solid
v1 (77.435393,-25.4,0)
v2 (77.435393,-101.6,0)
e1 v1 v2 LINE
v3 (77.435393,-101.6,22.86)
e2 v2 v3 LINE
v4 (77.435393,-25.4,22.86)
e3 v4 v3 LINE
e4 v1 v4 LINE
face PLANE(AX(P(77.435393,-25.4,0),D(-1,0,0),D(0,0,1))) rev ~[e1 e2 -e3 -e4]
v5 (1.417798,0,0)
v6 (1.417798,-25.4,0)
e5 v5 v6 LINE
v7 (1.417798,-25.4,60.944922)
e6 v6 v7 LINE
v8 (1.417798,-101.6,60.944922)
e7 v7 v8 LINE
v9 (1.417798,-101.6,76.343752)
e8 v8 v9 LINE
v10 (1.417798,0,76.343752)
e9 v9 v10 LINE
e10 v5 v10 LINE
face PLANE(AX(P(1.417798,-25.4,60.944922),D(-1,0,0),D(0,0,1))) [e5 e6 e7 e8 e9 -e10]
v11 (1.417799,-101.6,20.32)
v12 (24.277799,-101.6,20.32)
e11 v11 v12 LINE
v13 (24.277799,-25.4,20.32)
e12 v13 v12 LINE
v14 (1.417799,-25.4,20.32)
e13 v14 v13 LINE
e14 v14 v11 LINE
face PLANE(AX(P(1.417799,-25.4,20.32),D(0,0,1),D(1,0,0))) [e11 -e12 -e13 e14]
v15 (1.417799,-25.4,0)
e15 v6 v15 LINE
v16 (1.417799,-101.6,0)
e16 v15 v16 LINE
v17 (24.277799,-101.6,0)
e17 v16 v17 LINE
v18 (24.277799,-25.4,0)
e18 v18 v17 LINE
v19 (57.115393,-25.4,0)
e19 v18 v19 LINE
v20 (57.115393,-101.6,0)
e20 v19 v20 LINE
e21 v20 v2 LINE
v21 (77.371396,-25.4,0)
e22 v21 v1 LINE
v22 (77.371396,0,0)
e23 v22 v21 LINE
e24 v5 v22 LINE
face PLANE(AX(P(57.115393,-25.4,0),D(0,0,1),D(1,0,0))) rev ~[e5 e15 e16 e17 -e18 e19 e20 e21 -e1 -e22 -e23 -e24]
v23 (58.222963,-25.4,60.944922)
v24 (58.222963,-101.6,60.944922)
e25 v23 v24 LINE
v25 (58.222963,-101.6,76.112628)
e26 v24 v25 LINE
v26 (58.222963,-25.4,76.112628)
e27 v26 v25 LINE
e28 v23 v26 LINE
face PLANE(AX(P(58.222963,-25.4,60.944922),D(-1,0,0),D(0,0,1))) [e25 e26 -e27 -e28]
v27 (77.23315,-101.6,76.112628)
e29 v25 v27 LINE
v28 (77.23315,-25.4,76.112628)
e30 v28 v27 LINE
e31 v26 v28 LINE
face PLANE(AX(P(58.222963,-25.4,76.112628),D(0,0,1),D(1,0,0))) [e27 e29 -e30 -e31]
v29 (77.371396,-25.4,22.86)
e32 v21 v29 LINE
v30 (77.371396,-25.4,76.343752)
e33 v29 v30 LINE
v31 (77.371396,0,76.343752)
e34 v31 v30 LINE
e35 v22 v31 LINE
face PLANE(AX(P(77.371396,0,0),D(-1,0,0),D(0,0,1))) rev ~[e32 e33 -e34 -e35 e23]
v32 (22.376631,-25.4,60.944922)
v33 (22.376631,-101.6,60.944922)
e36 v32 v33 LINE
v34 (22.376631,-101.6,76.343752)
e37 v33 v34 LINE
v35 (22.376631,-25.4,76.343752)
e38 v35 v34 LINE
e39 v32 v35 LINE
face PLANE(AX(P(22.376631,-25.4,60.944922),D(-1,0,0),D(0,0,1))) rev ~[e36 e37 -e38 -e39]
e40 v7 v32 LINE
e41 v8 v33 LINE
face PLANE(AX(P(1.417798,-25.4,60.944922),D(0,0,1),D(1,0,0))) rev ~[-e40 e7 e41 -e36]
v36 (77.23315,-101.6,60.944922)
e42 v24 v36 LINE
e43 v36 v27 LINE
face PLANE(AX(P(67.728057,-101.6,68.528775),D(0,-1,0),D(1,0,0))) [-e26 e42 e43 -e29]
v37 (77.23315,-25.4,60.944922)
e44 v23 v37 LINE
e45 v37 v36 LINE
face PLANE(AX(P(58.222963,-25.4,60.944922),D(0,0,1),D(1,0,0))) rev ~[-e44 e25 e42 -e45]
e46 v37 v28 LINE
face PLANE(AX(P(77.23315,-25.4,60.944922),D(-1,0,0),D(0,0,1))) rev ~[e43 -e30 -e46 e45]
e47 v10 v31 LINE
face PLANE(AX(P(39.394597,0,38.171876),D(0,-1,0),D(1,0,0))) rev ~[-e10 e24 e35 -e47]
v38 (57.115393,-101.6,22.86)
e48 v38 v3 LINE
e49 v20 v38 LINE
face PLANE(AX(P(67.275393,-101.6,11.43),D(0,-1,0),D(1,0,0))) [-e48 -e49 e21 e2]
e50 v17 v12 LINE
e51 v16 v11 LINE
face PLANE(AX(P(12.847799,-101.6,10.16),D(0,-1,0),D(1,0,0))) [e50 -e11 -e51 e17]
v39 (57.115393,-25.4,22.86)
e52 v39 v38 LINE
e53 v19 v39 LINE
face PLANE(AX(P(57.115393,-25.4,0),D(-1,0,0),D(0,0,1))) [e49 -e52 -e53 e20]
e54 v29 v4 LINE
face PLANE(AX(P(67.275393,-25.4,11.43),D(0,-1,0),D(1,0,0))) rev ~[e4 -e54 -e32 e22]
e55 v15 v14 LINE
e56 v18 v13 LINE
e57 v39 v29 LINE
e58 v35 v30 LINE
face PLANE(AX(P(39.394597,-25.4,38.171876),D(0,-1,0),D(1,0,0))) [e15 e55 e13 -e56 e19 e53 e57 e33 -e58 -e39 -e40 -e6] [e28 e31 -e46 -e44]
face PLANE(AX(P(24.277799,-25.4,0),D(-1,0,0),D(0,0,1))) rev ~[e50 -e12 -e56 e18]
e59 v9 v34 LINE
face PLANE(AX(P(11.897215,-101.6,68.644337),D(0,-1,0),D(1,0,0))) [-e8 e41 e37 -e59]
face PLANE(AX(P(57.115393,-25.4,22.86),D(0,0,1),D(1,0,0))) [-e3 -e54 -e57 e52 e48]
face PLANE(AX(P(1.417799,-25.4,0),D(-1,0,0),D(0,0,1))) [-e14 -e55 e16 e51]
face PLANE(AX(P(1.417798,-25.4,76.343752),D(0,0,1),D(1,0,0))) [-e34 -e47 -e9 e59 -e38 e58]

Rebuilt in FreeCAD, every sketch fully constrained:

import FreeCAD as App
import Part
import Sketcher
Q = App.Units.Quantity


def add_polygon(sketch, points):
    """Adds a closed chain of lines whose ends are joined by coincident constraints."""
    first, n = sketch.GeometryCount, len(points)
    for a, b in zip(points, points[1:] + points[:1]):
        sketch.addGeometry(Part.LineSegment(App.Vector(*a, 0), App.Vector(*b, 0)), False)
    for i in range(n):
        sketch.addConstraint(Sketcher.Constraint("Coincident", first + i, 2, first + (i + 1) % n, 1))

doc = App.newDocument("Part")
body = doc.addObject("PartDesign::Body", "Body")

# Sketch on XZ plane
sketch1 = doc.addObject("Sketcher::SketchObject", "Sketch")
body.addObject(sketch1)
sketch1.AttachmentSupport = (doc.XZ_Plane, [""])
sketch1.MapMode = "FlatFace"
add_polygon(sketch1, [(1, 76), (1, 0), (77, 0), (77, 76)])  # lines 0-3
sketch1.addConstraint([
    Sketcher.Constraint("Vertical", 0),
    Sketcher.Constraint("Horizontal", 1),
    Sketcher.Constraint("Vertical", 2),
    Sketcher.Constraint("Horizontal", 3),
    Sketcher.Constraint("PointOnObject", 0, 2, -1),
    Sketcher.Constraint("DistanceY", 0, 2, 0, 1, 76.343752),
    Sketcher.Constraint("DistanceX", -1, 1, 0, 2, 1.417798),
    Sketcher.Constraint("DistanceX", 1, 1, 1, 2, 75.953597),
])
pad1 = doc.addObject("PartDesign::Pad", "Pad")
body.addObject(pad1)
pad1.Profile = sketch1
pad1.Length = Q("1 in")

# Sketch on XZ plane
sketch2 = doc.addObject("Sketcher::SketchObject", "Sketch001")
body.addObject(sketch2)
sketch2.AttachmentSupport = (doc.XZ_Plane, [""])
sketch2.MapMode = "FlatFace"
sketch2.AttachmentOffset = App.Placement(App.Vector(0, 0, 1 * 25.4), App.Rotation())
add_polygon(sketch2, [(1, 20), (1, 0), (24, 0), (24, 20)])  # lines 0-3
add_polygon(sketch2, [(1, 76), (1, 61), (22, 61), (22, 76)])  # lines 4-7
sketch2.addConstraint([
    Sketcher.Constraint("Vertical", 0),
    Sketcher.Constraint("Horizontal", 1),
    Sketcher.Constraint("Vertical", 2),
    Sketcher.Constraint("Horizontal", 3),
    Sketcher.Constraint("Vertical", 4),
    Sketcher.Constraint("Horizontal", 5),
    Sketcher.Constraint("Vertical", 6),
    Sketcher.Constraint("Horizontal", 7),
    Sketcher.Constraint("PointOnObject", 0, 2, -1),
    Sketcher.Constraint("Vertical", 3, 2, 4, 2),
    Sketcher.Constraint("DistanceX", 1, 1, 1, 2, Q("0.9 in")),
    Sketcher.Constraint("DistanceY", 0, 2, 0, 1, Q("0.8 in")),
    Sketcher.Constraint("DistanceY", 4, 2, 4, 1, 15.39883),
    Sketcher.Constraint("DistanceX", -1, 1, 0, 2, 1.417799),
    Sketcher.Constraint("DistanceX", 5, 1, 5, 2, 20.958833),
    Sketcher.Constraint("DistanceY", -1, 1, 4, 2, 60.944922),
])
pad2 = doc.addObject("PartDesign::Pad", "Pad001")
body.addObject(pad2)
pad2.Profile = sketch2
pad2.Length = Q("3 in")

# Sketch on XZ plane
sketch3 = doc.addObject("Sketcher::SketchObject", "Sketch002")
body.addObject(sketch3)
sketch3.AttachmentSupport = (doc.XZ_Plane, [""])
sketch3.MapMode = "FlatFace"
sketch3.AttachmentOffset = App.Placement(App.Vector(0, 0, 1 * 25.4), App.Rotation())
add_polygon(sketch3, [(57, 23), (57, 0), (77, 0), (77, 23)])  # lines 0-3
add_polygon(sketch3, [(58, 76), (58, 61), (77, 61), (77, 76)])  # lines 4-7
sketch3.addConstraint([
    Sketcher.Constraint("Vertical", 0),
    Sketcher.Constraint("Horizontal", 1),
    Sketcher.Constraint("Vertical", 2),
    Sketcher.Constraint("Horizontal", 3),
    Sketcher.Constraint("Vertical", 4),
    Sketcher.Constraint("Horizontal", 5),
    Sketcher.Constraint("Vertical", 6),
    Sketcher.Constraint("Horizontal", 7),
    Sketcher.Constraint("PointOnObject", 0, 2, -1),
    Sketcher.Constraint("DistanceX", 1, 1, 1, 2, Q("0.8 in")),
    Sketcher.Constraint("DistanceY", 0, 2, 0, 1, Q("0.9 in")),
    Sketcher.Constraint("DistanceX", 5, 1, 5, 2, 19.010187),
    Sketcher.Constraint("DistanceY", 4, 2, 4, 1, 15.167706),
    Sketcher.Constraint("DistanceY", -1, 1, 4, 2, 60.944922),
    Sketcher.Constraint("DistanceX", -1, 1, 5, 2, 77.23315),
    Sketcher.Constraint("DistanceX", 3, 2, 4, 2, 1.107571),
])
pad3 = doc.addObject("PartDesign::Pad", "Pad002")
body.addObject(pad3)
pad3.Profile = sketch3
pad3.Length = Q("3 in")

doc.recompute()
